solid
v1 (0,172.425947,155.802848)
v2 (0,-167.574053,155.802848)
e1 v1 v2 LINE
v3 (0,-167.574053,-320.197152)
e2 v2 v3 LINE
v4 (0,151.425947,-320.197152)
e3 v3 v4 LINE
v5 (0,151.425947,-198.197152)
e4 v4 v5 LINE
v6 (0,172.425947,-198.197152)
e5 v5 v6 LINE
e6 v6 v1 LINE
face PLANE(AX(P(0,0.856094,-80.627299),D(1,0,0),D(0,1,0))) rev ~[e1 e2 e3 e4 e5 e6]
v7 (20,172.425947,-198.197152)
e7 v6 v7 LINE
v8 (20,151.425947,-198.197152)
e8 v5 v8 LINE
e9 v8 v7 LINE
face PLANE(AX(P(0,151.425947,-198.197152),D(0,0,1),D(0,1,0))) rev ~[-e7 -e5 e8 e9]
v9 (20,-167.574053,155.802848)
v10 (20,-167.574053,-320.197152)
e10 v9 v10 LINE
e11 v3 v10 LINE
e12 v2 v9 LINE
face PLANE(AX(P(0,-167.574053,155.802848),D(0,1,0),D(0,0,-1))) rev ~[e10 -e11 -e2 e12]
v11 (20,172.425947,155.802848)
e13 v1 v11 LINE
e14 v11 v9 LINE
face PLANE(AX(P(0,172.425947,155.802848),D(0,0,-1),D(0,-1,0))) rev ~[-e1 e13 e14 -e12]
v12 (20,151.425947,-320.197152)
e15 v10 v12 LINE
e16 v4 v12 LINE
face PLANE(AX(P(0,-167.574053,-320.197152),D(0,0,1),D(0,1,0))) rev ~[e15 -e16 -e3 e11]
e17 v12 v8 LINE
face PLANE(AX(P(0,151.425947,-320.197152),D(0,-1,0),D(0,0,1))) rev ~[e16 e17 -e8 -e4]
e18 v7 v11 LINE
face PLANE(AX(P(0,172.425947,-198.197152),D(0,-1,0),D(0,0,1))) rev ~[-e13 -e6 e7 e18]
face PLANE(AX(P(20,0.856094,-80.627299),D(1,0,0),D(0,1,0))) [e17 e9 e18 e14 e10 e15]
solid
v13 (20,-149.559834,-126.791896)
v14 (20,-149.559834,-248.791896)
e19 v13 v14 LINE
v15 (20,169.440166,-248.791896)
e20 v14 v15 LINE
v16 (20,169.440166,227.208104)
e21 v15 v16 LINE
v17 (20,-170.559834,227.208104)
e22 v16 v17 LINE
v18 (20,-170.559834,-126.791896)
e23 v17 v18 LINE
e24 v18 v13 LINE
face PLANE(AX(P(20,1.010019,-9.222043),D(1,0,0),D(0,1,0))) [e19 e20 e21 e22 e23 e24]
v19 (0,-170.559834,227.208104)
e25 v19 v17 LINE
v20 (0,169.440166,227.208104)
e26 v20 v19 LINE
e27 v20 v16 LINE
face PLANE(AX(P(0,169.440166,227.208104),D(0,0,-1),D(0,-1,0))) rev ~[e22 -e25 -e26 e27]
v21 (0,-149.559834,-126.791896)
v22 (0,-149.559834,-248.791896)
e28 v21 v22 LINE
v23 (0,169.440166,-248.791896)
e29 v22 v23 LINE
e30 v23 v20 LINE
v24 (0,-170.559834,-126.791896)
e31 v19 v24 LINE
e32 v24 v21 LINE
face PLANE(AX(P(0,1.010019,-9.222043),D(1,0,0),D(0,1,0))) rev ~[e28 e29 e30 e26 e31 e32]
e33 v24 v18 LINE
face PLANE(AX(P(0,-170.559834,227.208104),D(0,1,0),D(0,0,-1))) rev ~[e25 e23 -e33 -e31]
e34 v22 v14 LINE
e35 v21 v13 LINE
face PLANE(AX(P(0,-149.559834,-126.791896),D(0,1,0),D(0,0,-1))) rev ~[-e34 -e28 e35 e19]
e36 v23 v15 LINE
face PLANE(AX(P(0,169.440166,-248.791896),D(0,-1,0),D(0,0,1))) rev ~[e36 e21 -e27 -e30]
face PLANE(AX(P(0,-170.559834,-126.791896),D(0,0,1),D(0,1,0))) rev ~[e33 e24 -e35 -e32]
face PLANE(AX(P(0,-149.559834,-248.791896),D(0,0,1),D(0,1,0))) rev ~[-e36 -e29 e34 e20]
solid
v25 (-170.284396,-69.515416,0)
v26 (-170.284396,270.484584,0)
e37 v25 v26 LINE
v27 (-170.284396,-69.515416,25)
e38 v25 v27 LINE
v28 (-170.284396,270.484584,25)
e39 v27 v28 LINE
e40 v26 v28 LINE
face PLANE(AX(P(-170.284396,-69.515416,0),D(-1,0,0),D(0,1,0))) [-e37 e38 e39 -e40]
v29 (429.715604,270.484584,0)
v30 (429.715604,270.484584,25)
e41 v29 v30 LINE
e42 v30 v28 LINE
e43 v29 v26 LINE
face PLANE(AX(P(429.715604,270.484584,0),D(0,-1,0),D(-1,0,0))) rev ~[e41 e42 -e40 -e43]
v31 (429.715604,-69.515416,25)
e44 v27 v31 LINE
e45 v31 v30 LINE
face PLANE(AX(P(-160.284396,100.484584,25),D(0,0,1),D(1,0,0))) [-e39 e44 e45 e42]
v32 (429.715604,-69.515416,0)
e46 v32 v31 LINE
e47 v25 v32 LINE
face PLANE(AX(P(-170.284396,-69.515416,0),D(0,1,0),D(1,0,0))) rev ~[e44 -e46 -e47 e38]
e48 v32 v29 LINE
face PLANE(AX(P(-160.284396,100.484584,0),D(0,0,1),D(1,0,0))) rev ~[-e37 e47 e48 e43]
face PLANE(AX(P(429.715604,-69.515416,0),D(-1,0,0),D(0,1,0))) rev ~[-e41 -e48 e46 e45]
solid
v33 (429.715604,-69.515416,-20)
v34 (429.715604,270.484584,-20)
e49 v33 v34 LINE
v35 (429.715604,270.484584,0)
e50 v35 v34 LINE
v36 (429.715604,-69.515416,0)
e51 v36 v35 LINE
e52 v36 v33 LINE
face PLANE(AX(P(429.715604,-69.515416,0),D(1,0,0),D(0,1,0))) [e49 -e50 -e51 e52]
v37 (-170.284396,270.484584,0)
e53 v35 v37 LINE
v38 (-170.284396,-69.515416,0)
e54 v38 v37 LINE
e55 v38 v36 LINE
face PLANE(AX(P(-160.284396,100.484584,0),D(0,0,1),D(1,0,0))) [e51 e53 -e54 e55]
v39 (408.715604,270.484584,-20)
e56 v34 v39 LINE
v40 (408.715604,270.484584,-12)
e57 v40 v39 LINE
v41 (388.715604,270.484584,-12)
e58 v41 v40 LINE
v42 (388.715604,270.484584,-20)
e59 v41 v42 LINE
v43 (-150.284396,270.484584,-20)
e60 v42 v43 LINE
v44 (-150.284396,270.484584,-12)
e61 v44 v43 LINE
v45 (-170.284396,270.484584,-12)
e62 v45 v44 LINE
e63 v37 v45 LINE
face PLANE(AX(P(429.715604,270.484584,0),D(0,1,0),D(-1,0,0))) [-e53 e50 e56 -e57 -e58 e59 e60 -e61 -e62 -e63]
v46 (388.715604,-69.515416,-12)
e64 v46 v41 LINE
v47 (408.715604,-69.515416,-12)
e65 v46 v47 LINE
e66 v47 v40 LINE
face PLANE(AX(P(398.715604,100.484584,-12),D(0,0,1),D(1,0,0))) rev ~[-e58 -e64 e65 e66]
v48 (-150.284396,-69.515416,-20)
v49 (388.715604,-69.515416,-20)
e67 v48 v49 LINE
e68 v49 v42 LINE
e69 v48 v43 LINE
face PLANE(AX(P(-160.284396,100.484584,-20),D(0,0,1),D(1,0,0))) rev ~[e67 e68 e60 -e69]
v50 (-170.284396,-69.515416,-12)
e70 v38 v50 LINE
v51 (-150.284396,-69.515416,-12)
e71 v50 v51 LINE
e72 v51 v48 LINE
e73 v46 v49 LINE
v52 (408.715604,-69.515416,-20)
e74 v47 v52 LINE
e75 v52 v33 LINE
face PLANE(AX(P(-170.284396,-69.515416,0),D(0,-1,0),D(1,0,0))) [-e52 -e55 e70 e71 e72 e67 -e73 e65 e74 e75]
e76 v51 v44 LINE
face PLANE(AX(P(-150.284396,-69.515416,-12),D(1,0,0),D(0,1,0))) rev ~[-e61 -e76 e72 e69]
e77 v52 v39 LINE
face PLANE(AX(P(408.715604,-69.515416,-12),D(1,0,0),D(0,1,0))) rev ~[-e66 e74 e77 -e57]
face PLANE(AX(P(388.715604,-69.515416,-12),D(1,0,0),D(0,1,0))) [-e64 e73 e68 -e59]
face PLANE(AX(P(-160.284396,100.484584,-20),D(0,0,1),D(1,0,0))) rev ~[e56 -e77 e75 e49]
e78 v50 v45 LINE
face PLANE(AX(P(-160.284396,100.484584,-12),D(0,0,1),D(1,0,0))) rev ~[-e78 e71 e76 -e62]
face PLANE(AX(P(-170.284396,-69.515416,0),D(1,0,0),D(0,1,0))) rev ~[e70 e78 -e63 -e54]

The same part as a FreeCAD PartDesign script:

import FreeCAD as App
import Part
import Sketcher

V = App.Vector


def add_polygon(sketch, points):
    """Adds a closed chain of lines whose ends are joined by coincident constraints."""
    first, n = sketch.GeometryCount, len(points)
    for a, b in zip(points, points[1:] + points[:1]):
        sketch.addGeometry(Part.LineSegment(App.Vector(*a, 0), App.Vector(*b, 0)), False)
    for i in range(n):
        sketch.addConstraint(Sketcher.Constraint("Coincident", first + i, 2, first + (i + 1) % n, 1))

doc = App.newDocument("Part")
body = doc.addObject("PartDesign::Body", "Body")

sketch1 = body.newObject("Sketcher::SketchObject", "Sketch")
sketch1.AttachmentSupport = (doc.getObject("XY_Plane"), [""])
sketch1.MapMode = "FlatFace"
add_polygon(sketch1, [(-170, 270), (-170, -70), (430, -70), (430, 270)])
sketch1.addConstraint([
    Sketcher.Constraint("Vertical", 0),
    Sketcher.Constraint("Horizontal", 1),
    Sketcher.Constraint("Vertical", 2),
    Sketcher.Constraint("Horizontal", 3),
    Sketcher.Constraint("DistanceX", 1, 1, 1, 2, 600.0),
    Sketcher.Constraint("DistanceY", 0, 2, 0, 1, 340.0),
    Sketcher.Constraint("DistanceX", 0, 2, -1, 1, 170.284396),
    Sketcher.Constraint("DistanceY", 0, 2, -1, 1, 69.515416),
])
pad1 = body.newObject("PartDesign::Pad", "Pad")
pad1.Profile = sketch1
pad1.Length = 20
pad1.Reversed = True

sketch2 = body.newObject("Sketcher::SketchObject", "Sketch001")
sketch2.AttachmentSupport = (doc.getObject("XY_Plane"), [""])
sketch2.MapMode = "FlatFace"
sketch2.AttachmentOffset = App.Placement(V(0, 0, -12), App.Rotation())
add_polygon(sketch2, [(-170, 270), (-170, -70), (-150, -70), (-150, 270)])
add_polygon(sketch2, [(389, 270), (389, -70), (409, -70), (409, 270)])
sketch2.addConstraint([
    Sketcher.Constraint("Vertical", 0),
    Sketcher.Constraint("Horizontal", 1),
    Sketcher.Constraint("Vertical", 2),
    Sketcher.Constraint("Horizontal", 3),
    Sketcher.Constraint("Vertical", 4),
    Sketcher.Constraint("Horizontal", 5),
    Sketcher.Constraint("Vertical", 6),
    Sketcher.Constraint("Horizontal", 7),
    Sketcher.Constraint("Horizontal", 1, 2, 4, 2),
    Sketcher.Constraint("Horizontal", 3, 2, 6, 2),
    Sketcher.Constraint("Equal", 3, 5),
    Sketcher.Constraint("DistanceX", 1, 1, 1, 2, 20.0),
    Sketcher.Constraint("DistanceY", 0, 2, 0, 1, 340.0),
    Sketcher.Constraint("DistanceX", 1, 2, 4, 2, 539.0),
    Sketcher.Constraint("DistanceX", 0, 2, -1, 1, 170.284396),
    Sketcher.Constraint("DistanceY", 0, 2, -1, 1, 69.515416),
])
pocket1 = body.newObject("PartDesign::Pocket", "Pocket")
pocket1.Profile = sketch2
pocket1.Length = 8
body2 = doc.addObject("PartDesign::Body", "Body001")

sketch3 = body2.newObject("Sketcher::SketchObject", "Sketch002")
sketch3.AttachmentSupport = (doc.getObject("YZ_Plane001"), [""])
sketch3.MapMode = "FlatFace"
add_polygon(sketch3, [(172, -198), (172, 156), (-168, 156), (-168, -320), (151, -320), (151, -198)])
sketch3.addConstraint([
    Sketcher.Constraint("Vertical", 0),
    Sketcher.Constraint("Horizontal", 1),
    Sketcher.Constraint("Vertical", 2),
    Sketcher.Constraint("Horizontal", 3),
    Sketcher.Constraint("Vertical", 4),
    Sketcher.Constraint("Horizontal", 5),
    Sketcher.Constraint("DistanceX", 1, 2, 1, 1, 340.0),
    Sketcher.Constraint("DistanceX", 3, 1, 3, 2, 319.0),
    Sketcher.Constraint("DistanceY", 0, 1, 0, 2, 354.0),
    Sketcher.Constraint("DistanceY", 2, 2, 2, 1, 476.0),
    Sketcher.Constraint("DistanceX", -1, 1, 0, 2, 172.425947),
    Sketcher.Constraint("DistanceY", -1, 1, 0, 2, 155.802848),
])
pad2 = body2.newObject("PartDesign::Pad", "Pad001")
pad2.Profile = sketch3
pad2.Length = 20
body3 = doc.addObject("PartDesign::Body", "Body002")

sketch4 = body3.newObject("Sketcher::SketchObject", "Sketch003")
sketch4.AttachmentSupport = (doc.getObject("YZ_Plane002"), [""])
sketch4.MapMode = "FlatFace"
add_polygon(sketch4, [(169, 227), (-171, 227), (-171, -127), (-150, -127), (-150, -249), (169, -249)])
sketch4.addConstraint([
    Sketcher.Constraint("Horizontal", 0),
    Sketcher.Constraint("Vertical", 1),
    Sketcher.Constraint("Horizontal", 2),
    Sketcher.Constraint("Vertical", 3),
    Sketcher.Constraint("Horizontal", 4),
    Sketcher.Constraint("Vertical", 5),
    Sketcher.Constraint("DistanceX", 0, 2, 0, 1, 340.0),
    Sketcher.Constraint("DistanceX", 2, 1, 2, 2, 21.0),
    Sketcher.Constraint("DistanceY", 1, 2, 1, 1, 354.0),
    Sketcher.Constraint("DistanceY", 3, 2, 3, 1, 122.0),
    Sketcher.Constraint("DistanceX", 0, 2, -1, 1, 170.559834),
    Sketcher.Constraint("DistanceY", -1, 1, 0, 2, 227.208104),
])
pad3 = body3.newObject("PartDesign::Pad", "Pad002")
pad3.Profile = sketch4
pad3.Length = 20
body4 = doc.addObject("PartDesign::Body", "Body003")

sketch5 = body4.newObject("Sketcher::SketchObject", "Sketch004")
sketch5.AttachmentSupport = (doc.getObject("XY_Plane003"), [""])
sketch5.MapMode = "FlatFace"
add_polygon(sketch5, [(-170, 270), (-170, -70), (430, -70), (430, 270)])
sketch5.addConstraint([
    Sketcher.Constraint("Vertical", 0),
    Sketcher.Constraint("Horizontal", 1),
    Sketcher.Constraint("Vertical", 2),
    Sketcher.Constraint("Horizontal", 3),
    Sketcher.Constraint("DistanceX", 1, 1, 1, 2, 600.0),
    Sketcher.Constraint("DistanceY", 0, 2, 0, 1, 340.0),
    Sketcher.Constraint("DistanceX", 0, 2, -1, 1, 170.284396),
    Sketcher.Constraint("DistanceY", 0, 2, -1, 1, 69.515416),
])
pad4 = body4.newObject("PartDesign::Pad", "Pad003")
pad4.Profile = sketch5
pad4.Length = 25

doc.recompute()
